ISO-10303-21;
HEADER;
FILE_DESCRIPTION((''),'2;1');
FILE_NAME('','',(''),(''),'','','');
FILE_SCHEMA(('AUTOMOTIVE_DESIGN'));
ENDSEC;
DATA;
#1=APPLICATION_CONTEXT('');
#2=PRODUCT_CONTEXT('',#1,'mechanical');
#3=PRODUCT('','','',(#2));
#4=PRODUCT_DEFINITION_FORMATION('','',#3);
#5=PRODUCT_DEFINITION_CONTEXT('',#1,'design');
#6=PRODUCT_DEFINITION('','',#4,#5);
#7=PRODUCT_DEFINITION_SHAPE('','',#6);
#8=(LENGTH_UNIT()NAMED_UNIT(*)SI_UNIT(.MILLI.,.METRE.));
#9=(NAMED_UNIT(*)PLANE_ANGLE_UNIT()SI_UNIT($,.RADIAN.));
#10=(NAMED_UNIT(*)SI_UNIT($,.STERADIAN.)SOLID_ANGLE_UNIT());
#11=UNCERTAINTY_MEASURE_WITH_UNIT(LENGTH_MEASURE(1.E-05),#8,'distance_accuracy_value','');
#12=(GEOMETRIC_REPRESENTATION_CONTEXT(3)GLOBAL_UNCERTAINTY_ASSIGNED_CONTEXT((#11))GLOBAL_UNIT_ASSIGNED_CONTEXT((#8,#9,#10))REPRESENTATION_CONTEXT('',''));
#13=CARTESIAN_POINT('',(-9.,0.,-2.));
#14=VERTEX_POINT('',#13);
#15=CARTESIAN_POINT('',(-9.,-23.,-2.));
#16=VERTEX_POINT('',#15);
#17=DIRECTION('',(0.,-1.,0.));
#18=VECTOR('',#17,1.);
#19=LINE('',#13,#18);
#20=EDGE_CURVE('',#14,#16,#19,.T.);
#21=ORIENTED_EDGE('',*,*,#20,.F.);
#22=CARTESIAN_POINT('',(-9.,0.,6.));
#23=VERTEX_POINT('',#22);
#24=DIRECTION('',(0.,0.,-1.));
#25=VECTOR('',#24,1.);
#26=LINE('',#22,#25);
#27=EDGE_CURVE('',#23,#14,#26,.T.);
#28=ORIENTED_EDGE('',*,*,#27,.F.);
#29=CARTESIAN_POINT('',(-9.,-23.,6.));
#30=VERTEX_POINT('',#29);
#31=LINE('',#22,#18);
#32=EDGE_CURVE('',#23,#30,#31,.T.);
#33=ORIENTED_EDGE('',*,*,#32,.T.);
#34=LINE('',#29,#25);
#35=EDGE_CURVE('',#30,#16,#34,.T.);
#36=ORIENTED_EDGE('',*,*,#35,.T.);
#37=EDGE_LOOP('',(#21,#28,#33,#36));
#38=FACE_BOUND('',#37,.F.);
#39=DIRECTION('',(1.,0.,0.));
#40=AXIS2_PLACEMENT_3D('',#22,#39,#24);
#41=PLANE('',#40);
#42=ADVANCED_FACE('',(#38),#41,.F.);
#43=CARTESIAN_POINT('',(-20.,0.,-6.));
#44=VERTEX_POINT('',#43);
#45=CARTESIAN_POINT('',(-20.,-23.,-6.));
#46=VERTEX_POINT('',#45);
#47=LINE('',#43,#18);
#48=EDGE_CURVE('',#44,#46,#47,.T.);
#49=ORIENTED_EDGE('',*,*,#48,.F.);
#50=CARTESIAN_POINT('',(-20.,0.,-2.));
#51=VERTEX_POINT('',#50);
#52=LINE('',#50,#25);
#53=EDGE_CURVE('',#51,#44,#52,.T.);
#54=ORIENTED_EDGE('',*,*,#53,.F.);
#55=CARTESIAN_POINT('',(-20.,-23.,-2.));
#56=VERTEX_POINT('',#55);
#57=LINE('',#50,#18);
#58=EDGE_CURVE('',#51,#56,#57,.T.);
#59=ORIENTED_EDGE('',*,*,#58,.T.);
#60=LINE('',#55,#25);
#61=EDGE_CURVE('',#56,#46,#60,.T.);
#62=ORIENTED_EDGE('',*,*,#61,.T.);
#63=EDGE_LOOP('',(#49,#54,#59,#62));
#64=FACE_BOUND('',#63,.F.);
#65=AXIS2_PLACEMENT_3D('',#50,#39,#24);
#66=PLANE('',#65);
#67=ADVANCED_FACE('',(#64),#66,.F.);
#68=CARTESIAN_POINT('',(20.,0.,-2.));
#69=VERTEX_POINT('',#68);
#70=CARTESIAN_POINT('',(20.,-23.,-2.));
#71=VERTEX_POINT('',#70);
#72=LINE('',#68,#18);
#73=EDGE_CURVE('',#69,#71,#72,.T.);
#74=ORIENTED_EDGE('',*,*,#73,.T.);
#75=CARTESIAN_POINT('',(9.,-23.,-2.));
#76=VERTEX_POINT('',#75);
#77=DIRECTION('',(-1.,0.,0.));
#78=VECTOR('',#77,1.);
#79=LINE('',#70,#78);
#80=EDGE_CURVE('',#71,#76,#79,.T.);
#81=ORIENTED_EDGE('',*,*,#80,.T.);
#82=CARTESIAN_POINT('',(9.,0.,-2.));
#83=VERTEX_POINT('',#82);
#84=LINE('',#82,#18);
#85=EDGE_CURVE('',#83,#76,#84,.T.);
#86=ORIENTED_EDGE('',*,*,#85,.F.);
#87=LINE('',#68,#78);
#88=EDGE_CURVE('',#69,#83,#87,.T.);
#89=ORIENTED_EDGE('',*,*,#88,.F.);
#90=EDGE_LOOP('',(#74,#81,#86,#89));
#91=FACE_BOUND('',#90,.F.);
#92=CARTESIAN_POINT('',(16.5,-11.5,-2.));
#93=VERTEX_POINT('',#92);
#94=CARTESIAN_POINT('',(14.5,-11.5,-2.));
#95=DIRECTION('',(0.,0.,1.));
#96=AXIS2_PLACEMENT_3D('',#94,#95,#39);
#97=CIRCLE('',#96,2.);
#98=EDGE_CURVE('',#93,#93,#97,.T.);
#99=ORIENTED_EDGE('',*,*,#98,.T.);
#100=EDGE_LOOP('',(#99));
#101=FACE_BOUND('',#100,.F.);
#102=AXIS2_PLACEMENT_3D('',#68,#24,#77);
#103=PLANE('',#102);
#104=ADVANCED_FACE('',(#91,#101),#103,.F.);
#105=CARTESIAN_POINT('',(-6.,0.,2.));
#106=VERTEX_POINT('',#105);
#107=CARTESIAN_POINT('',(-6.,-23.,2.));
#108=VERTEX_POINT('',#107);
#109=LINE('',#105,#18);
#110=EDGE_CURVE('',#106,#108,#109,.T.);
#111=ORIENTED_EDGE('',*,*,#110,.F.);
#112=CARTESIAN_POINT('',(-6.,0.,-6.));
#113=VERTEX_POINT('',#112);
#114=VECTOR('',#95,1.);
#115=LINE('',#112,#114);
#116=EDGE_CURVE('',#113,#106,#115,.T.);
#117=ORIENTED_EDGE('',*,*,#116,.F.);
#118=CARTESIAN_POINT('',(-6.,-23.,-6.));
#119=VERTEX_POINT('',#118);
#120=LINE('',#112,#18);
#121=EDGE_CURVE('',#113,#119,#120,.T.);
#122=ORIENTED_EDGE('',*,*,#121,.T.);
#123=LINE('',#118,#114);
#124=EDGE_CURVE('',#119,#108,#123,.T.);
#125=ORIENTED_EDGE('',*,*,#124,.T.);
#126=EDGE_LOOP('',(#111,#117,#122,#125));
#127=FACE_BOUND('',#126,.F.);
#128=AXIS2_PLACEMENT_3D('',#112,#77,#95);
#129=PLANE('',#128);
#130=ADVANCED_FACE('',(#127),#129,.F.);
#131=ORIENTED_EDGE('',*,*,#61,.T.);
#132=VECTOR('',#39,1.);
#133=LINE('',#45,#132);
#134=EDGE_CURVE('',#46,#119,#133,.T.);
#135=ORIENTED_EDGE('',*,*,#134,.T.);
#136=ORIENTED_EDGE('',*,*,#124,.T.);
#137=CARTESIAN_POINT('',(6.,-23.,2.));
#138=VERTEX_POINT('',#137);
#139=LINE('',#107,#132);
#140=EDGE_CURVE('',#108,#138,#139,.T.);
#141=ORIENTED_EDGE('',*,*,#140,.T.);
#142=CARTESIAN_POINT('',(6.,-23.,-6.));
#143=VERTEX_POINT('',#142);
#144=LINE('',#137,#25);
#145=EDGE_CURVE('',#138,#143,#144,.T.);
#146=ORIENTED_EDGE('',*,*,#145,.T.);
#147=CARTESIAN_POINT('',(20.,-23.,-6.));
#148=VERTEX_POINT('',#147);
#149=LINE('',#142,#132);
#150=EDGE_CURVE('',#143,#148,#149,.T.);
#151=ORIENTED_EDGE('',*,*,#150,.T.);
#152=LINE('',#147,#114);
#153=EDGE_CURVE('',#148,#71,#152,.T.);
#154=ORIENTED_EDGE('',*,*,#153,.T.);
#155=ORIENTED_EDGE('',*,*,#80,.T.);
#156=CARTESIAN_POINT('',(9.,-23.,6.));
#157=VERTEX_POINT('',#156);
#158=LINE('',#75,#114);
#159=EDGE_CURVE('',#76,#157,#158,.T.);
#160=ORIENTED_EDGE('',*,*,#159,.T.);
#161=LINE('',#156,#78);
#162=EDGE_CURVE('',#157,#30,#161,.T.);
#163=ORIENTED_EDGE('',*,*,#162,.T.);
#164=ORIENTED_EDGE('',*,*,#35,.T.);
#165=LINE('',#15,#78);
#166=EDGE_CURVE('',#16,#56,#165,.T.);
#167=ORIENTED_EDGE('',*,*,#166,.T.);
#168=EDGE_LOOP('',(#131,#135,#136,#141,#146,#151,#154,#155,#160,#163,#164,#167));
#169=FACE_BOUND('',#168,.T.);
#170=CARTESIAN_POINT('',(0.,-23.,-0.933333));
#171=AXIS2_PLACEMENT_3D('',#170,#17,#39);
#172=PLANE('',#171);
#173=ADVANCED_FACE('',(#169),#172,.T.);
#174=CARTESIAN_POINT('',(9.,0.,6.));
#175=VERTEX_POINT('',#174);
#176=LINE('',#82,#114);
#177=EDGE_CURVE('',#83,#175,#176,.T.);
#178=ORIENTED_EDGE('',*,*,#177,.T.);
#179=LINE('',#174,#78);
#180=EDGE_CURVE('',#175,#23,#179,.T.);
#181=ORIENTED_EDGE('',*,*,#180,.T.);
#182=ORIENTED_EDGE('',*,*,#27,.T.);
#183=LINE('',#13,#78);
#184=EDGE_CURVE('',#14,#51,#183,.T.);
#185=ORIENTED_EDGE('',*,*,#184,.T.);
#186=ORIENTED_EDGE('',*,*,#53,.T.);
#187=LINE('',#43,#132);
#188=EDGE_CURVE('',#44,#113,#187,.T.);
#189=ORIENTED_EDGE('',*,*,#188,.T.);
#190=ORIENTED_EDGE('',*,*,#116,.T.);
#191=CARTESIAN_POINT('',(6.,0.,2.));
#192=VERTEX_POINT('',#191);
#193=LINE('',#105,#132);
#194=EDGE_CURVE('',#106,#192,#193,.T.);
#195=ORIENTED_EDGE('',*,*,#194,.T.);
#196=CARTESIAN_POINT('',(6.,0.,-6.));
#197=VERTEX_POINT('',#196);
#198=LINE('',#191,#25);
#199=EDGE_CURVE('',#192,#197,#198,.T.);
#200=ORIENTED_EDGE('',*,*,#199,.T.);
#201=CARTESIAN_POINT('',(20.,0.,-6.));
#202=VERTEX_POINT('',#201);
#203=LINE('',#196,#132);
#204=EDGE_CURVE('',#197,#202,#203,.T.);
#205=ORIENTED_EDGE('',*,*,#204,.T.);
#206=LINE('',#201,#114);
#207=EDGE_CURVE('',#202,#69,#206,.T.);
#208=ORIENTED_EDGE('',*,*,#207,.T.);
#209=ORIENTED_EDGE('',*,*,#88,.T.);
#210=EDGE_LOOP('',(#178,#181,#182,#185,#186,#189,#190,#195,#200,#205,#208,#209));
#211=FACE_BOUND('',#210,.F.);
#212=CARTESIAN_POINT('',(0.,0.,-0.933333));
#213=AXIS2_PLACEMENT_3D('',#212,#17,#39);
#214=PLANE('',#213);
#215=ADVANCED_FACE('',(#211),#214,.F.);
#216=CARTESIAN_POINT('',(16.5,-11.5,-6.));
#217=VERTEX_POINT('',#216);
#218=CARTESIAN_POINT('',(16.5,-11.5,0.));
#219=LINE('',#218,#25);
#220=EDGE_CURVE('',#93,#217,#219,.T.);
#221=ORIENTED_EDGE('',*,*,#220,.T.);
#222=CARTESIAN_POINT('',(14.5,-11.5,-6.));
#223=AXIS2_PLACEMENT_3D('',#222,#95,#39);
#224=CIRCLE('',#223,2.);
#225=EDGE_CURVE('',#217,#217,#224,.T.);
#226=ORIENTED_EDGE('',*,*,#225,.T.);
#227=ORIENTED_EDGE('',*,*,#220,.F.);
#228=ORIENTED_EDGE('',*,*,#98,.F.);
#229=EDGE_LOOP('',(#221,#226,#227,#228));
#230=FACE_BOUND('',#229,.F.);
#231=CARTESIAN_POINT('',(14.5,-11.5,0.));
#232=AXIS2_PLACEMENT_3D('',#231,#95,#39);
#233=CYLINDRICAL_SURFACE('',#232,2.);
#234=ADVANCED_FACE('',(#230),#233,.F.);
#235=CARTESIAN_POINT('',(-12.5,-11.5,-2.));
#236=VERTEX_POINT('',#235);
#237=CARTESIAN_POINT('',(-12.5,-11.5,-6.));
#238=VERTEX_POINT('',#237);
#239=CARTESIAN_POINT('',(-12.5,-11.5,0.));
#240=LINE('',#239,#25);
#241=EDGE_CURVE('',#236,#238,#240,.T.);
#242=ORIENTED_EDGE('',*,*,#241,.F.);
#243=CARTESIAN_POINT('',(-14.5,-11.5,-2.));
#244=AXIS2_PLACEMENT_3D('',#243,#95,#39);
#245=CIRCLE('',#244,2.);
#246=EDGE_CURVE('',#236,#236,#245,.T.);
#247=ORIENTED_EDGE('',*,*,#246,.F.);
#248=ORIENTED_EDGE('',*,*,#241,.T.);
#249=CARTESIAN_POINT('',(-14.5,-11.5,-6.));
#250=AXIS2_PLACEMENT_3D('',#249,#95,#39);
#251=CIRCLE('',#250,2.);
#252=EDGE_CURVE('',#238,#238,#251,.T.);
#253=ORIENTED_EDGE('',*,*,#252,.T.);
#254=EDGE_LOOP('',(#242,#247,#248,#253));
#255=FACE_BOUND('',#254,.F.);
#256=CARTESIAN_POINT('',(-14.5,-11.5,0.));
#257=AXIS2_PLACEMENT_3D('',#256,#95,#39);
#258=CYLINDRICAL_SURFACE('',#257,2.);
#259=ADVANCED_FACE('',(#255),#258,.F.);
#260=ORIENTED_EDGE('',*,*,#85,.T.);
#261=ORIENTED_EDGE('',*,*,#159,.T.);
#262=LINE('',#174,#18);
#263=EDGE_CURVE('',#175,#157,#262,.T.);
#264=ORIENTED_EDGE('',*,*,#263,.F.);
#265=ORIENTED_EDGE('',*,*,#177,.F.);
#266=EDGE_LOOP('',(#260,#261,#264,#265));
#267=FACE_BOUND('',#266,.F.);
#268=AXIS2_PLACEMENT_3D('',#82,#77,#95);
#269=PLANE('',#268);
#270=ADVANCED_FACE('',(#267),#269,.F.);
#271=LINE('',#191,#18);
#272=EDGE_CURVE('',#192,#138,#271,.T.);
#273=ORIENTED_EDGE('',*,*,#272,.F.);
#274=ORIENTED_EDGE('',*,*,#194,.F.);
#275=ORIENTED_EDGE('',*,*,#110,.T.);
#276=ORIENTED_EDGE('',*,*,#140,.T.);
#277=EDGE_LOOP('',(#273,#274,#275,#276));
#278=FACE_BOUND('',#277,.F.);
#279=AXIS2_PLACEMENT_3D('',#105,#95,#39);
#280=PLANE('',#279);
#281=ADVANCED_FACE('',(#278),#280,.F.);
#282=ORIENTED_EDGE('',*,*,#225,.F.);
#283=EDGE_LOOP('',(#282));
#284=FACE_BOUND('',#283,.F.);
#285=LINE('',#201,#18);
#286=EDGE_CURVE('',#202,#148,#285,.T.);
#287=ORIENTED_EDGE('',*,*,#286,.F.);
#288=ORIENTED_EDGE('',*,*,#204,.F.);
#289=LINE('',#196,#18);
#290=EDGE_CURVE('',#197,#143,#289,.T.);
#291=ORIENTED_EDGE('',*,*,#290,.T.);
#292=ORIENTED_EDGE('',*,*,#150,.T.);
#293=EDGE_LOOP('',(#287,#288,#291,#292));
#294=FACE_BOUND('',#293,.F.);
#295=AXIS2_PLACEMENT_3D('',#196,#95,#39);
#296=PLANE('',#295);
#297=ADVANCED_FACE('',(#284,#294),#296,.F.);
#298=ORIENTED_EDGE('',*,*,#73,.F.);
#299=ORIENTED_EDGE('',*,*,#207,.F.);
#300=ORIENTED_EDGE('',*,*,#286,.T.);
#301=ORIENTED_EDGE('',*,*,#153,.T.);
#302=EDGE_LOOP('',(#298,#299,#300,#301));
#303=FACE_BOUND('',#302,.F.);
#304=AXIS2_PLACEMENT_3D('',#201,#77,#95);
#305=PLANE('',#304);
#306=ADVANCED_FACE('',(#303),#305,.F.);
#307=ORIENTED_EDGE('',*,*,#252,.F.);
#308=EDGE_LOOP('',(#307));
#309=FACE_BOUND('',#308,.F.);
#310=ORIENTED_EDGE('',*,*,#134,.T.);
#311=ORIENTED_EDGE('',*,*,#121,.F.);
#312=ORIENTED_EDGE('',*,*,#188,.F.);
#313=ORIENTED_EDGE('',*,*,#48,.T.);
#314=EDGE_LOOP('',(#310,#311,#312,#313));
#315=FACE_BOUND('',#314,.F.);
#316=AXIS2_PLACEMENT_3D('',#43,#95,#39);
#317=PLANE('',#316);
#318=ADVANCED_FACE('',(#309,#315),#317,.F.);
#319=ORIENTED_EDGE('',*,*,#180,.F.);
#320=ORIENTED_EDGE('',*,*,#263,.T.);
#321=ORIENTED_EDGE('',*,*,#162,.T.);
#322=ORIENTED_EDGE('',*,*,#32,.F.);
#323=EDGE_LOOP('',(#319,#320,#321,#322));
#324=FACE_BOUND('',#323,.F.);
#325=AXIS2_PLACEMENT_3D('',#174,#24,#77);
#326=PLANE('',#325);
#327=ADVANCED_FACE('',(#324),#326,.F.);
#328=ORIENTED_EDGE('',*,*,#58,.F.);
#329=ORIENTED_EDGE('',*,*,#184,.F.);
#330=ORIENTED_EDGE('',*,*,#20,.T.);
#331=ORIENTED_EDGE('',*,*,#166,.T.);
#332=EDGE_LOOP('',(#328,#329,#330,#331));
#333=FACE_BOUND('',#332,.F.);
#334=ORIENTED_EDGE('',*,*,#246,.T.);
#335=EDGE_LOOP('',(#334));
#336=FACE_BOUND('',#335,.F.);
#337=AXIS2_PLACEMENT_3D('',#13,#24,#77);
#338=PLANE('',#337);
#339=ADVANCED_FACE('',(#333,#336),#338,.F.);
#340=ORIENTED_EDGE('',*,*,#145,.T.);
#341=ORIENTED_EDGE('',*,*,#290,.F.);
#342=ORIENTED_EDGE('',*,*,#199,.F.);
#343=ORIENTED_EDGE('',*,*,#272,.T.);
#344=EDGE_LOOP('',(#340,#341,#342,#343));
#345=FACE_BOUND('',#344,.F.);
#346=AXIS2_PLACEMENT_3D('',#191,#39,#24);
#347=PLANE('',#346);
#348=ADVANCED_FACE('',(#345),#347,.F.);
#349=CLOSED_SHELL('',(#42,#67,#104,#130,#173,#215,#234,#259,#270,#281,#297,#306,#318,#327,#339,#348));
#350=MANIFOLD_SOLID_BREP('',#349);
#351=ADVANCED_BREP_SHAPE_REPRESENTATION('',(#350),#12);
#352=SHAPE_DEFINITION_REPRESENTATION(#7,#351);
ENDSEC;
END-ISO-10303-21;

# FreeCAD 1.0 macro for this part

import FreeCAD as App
import Part
import Sketcher
from FreeCAD import Vector

doc = App.newDocument("Part")
params = doc.addObject("Spreadsheet::Sheet", "Params")
for row, (alias, value) in enumerate([
    ("sketch1_width", "11 mm"),
    ("sketch1_width2", "18 mm"),
    ("sketch1_width3", "14 mm"),
    ("sketch1_height", "4 mm"),
    ("sketch1_height2", "8 mm"),
    ("pad1_length", "23 mm"),
    ("sketch2_diameter", "4 mm"),
    ("pocket1_length", "25 mm"),
], start=1):
    params.set(f"A{row}", alias)
    params.set(f"B{row}", "=" + value)
    params.setAlias(f"B{row}", alias)

body = doc.addObject("PartDesign::Body", "Body")

# Sketch on XZ plane
sketch1 = doc.addObject("Sketcher::SketchObject", "Sketch")
body.addObject(sketch1)
sketch1.AttachmentSupport = (doc.XZ_Plane, [""])
sketch1.MapMode = "FlatFace"
sketch1.addGeometry([
    Part.LineSegment(Vector(20, -6, 0), Vector(20, -2, 0)),  # 0
    Part.LineSegment(Vector(20, -2, 0), Vector(9, -2, 0)),  # 1
    Part.LineSegment(Vector(9, -2, 0), Vector(9, 6, 0)),  # 2
    Part.LineSegment(Vector(9, 6, 0), Vector(-9, 6, 0)),  # 3
    Part.LineSegment(Vector(-9, 6, 0), Vector(-9, -2, 0)),  # 4
    Part.LineSegment(Vector(-9, -2, 0), Vector(-20, -2, 0)),  # 5
    Part.LineSegment(Vector(-20, -2, 0), Vector(-20, -6, 0)),  # 6
    Part.LineSegment(Vector(-20, -6, 0), Vector(-6, -6, 0)),  # 7
    Part.LineSegment(Vector(-6, -6, 0), Vector(-6, 2, 0)),  # 8
    Part.LineSegment(Vector(-6, 2, 0), Vector(6, 2, 0)),  # 9
    Part.LineSegment(Vector(6, 2, 0), Vector(6, -6, 0)),  # 10
    Part.LineSegment(Vector(6, -6, 0), Vector(20, -6, 0)),  # 11
], False)
sketch1.addConstraint([
    Sketcher.Constraint("Coincident", 0, 2, 1, 1),
    Sketcher.Constraint("Coincident", 1, 2, 2, 1),
    Sketcher.Constraint("Coincident", 2, 2, 3, 1),
    Sketcher.Constraint("Coincident", 3, 2, 4, 1),
    Sketcher.Constraint("Coincident", 4, 2, 5, 1),
    Sketcher.Constraint("Coincident", 5, 2, 6, 1),
    Sketcher.Constraint("Coincident", 6, 2, 7, 1),
    Sketcher.Constraint("Coincident", 7, 2, 8, 1),
    Sketcher.Constraint("Coincident", 8, 2, 9, 1),
    Sketcher.Constraint("Coincident", 9, 2, 10, 1),
    Sketcher.Constraint("Coincident", 10, 2, 11, 1),
    Sketcher.Constraint("Coincident", 11, 2, 0, 1),
    Sketcher.Constraint("Vertical", 0),
    Sketcher.Constraint("Horizontal", 1),
    Sketcher.Constraint("Vertical", 2),
    Sketcher.Constraint("Horizontal", 3),
    Sketcher.Constraint("Vertical", 4),
    Sketcher.Constraint("Horizontal", 5),
    Sketcher.Constraint("Vertical", 6),
    Sketcher.Constraint("Horizontal", 7),
    Sketcher.Constraint("Vertical", 8),
    Sketcher.Constraint("Horizontal", 9),
    Sketcher.Constraint("Vertical", 10),
    Sketcher.Constraint("Horizontal", 11),
    Sketcher.Constraint("Symmetric", 1, 2, 4, 2, -2),
    Sketcher.Constraint("Symmetric", 7, 2, 10, 2, -2),
    Sketcher.Constraint("Equal", 1, 5),
    Sketcher.Constraint("Equal", 4, 8),
    Sketcher.Constraint("DistanceX", 1, 2, 1, 1, 11.0),
    Sketcher.Constraint("DistanceX", 3, 2, 3, 1, 18.0),
    Sketcher.Constraint("DistanceX", 7, 1, 7, 2, 14.0),
    Sketcher.Constraint("DistanceY", 0, 1, 0, 2, 4.0),
    Sketcher.Constraint("DistanceY", 2, 1, 2, 2, 8.0),
    Sketcher.Constraint("DistanceY", 0, 2, -1, 1, 2.0),
])
sketch1.setExpression("Constraints[28]", "Params.sketch1_width")
sketch1.setExpression("Constraints[29]", "Params.sketch1_width2")
sketch1.setExpression("Constraints[30]", "Params.sketch1_width3")
sketch1.setExpression("Constraints[31]", "Params.sketch1_height")
sketch1.setExpression("Constraints[32]", "Params.sketch1_height2")
pad1 = doc.addObject("PartDesign::Pad", "Pad")
body.addObject(pad1)
pad1.Profile = sketch1
pad1.setExpression("Length", "Params.pad1_length")

# Sketch on XY plane
sketch2 = doc.addObject("Sketcher::SketchObject", "Sketch001")
body.addObject(sketch2)
sketch2.AttachmentSupport = (doc.XY_Plane, [""])
sketch2.MapMode = "FlatFace"
sketch2.addGeometry([
    Part.Circle(Vector(-14.5, -11.5, 0), Vector(0, 0, 1), 2),
    Part.Circle(Vector(14.5, -11.5, 0), Vector(0, 0, 1), 2),
], False)
sketch2.addConstraint([
    Sketcher.Constraint("Equal", 0, 1),
    Sketcher.Constraint("Symmetric", 0, 3, 1, 3, -2),
    Sketcher.Constraint("Diameter", 0, 4.0),
    Sketcher.Constraint("DistanceX", 0, 3, 1, 3, 29.0),
    Sketcher.Constraint("DistanceY", 0, 3, -1, 1, 11.5),
])
sketch2.setExpression("Constraints[2]", "Params.sketch2_diameter")
pocket1 = doc.addObject("PartDesign::Pocket", "Pocket")
body.addObject(pocket1)
pocket1.Profile = sketch2
pocket1.setExpression("Length", "Params.pocket1_length")

doc.recompute()
